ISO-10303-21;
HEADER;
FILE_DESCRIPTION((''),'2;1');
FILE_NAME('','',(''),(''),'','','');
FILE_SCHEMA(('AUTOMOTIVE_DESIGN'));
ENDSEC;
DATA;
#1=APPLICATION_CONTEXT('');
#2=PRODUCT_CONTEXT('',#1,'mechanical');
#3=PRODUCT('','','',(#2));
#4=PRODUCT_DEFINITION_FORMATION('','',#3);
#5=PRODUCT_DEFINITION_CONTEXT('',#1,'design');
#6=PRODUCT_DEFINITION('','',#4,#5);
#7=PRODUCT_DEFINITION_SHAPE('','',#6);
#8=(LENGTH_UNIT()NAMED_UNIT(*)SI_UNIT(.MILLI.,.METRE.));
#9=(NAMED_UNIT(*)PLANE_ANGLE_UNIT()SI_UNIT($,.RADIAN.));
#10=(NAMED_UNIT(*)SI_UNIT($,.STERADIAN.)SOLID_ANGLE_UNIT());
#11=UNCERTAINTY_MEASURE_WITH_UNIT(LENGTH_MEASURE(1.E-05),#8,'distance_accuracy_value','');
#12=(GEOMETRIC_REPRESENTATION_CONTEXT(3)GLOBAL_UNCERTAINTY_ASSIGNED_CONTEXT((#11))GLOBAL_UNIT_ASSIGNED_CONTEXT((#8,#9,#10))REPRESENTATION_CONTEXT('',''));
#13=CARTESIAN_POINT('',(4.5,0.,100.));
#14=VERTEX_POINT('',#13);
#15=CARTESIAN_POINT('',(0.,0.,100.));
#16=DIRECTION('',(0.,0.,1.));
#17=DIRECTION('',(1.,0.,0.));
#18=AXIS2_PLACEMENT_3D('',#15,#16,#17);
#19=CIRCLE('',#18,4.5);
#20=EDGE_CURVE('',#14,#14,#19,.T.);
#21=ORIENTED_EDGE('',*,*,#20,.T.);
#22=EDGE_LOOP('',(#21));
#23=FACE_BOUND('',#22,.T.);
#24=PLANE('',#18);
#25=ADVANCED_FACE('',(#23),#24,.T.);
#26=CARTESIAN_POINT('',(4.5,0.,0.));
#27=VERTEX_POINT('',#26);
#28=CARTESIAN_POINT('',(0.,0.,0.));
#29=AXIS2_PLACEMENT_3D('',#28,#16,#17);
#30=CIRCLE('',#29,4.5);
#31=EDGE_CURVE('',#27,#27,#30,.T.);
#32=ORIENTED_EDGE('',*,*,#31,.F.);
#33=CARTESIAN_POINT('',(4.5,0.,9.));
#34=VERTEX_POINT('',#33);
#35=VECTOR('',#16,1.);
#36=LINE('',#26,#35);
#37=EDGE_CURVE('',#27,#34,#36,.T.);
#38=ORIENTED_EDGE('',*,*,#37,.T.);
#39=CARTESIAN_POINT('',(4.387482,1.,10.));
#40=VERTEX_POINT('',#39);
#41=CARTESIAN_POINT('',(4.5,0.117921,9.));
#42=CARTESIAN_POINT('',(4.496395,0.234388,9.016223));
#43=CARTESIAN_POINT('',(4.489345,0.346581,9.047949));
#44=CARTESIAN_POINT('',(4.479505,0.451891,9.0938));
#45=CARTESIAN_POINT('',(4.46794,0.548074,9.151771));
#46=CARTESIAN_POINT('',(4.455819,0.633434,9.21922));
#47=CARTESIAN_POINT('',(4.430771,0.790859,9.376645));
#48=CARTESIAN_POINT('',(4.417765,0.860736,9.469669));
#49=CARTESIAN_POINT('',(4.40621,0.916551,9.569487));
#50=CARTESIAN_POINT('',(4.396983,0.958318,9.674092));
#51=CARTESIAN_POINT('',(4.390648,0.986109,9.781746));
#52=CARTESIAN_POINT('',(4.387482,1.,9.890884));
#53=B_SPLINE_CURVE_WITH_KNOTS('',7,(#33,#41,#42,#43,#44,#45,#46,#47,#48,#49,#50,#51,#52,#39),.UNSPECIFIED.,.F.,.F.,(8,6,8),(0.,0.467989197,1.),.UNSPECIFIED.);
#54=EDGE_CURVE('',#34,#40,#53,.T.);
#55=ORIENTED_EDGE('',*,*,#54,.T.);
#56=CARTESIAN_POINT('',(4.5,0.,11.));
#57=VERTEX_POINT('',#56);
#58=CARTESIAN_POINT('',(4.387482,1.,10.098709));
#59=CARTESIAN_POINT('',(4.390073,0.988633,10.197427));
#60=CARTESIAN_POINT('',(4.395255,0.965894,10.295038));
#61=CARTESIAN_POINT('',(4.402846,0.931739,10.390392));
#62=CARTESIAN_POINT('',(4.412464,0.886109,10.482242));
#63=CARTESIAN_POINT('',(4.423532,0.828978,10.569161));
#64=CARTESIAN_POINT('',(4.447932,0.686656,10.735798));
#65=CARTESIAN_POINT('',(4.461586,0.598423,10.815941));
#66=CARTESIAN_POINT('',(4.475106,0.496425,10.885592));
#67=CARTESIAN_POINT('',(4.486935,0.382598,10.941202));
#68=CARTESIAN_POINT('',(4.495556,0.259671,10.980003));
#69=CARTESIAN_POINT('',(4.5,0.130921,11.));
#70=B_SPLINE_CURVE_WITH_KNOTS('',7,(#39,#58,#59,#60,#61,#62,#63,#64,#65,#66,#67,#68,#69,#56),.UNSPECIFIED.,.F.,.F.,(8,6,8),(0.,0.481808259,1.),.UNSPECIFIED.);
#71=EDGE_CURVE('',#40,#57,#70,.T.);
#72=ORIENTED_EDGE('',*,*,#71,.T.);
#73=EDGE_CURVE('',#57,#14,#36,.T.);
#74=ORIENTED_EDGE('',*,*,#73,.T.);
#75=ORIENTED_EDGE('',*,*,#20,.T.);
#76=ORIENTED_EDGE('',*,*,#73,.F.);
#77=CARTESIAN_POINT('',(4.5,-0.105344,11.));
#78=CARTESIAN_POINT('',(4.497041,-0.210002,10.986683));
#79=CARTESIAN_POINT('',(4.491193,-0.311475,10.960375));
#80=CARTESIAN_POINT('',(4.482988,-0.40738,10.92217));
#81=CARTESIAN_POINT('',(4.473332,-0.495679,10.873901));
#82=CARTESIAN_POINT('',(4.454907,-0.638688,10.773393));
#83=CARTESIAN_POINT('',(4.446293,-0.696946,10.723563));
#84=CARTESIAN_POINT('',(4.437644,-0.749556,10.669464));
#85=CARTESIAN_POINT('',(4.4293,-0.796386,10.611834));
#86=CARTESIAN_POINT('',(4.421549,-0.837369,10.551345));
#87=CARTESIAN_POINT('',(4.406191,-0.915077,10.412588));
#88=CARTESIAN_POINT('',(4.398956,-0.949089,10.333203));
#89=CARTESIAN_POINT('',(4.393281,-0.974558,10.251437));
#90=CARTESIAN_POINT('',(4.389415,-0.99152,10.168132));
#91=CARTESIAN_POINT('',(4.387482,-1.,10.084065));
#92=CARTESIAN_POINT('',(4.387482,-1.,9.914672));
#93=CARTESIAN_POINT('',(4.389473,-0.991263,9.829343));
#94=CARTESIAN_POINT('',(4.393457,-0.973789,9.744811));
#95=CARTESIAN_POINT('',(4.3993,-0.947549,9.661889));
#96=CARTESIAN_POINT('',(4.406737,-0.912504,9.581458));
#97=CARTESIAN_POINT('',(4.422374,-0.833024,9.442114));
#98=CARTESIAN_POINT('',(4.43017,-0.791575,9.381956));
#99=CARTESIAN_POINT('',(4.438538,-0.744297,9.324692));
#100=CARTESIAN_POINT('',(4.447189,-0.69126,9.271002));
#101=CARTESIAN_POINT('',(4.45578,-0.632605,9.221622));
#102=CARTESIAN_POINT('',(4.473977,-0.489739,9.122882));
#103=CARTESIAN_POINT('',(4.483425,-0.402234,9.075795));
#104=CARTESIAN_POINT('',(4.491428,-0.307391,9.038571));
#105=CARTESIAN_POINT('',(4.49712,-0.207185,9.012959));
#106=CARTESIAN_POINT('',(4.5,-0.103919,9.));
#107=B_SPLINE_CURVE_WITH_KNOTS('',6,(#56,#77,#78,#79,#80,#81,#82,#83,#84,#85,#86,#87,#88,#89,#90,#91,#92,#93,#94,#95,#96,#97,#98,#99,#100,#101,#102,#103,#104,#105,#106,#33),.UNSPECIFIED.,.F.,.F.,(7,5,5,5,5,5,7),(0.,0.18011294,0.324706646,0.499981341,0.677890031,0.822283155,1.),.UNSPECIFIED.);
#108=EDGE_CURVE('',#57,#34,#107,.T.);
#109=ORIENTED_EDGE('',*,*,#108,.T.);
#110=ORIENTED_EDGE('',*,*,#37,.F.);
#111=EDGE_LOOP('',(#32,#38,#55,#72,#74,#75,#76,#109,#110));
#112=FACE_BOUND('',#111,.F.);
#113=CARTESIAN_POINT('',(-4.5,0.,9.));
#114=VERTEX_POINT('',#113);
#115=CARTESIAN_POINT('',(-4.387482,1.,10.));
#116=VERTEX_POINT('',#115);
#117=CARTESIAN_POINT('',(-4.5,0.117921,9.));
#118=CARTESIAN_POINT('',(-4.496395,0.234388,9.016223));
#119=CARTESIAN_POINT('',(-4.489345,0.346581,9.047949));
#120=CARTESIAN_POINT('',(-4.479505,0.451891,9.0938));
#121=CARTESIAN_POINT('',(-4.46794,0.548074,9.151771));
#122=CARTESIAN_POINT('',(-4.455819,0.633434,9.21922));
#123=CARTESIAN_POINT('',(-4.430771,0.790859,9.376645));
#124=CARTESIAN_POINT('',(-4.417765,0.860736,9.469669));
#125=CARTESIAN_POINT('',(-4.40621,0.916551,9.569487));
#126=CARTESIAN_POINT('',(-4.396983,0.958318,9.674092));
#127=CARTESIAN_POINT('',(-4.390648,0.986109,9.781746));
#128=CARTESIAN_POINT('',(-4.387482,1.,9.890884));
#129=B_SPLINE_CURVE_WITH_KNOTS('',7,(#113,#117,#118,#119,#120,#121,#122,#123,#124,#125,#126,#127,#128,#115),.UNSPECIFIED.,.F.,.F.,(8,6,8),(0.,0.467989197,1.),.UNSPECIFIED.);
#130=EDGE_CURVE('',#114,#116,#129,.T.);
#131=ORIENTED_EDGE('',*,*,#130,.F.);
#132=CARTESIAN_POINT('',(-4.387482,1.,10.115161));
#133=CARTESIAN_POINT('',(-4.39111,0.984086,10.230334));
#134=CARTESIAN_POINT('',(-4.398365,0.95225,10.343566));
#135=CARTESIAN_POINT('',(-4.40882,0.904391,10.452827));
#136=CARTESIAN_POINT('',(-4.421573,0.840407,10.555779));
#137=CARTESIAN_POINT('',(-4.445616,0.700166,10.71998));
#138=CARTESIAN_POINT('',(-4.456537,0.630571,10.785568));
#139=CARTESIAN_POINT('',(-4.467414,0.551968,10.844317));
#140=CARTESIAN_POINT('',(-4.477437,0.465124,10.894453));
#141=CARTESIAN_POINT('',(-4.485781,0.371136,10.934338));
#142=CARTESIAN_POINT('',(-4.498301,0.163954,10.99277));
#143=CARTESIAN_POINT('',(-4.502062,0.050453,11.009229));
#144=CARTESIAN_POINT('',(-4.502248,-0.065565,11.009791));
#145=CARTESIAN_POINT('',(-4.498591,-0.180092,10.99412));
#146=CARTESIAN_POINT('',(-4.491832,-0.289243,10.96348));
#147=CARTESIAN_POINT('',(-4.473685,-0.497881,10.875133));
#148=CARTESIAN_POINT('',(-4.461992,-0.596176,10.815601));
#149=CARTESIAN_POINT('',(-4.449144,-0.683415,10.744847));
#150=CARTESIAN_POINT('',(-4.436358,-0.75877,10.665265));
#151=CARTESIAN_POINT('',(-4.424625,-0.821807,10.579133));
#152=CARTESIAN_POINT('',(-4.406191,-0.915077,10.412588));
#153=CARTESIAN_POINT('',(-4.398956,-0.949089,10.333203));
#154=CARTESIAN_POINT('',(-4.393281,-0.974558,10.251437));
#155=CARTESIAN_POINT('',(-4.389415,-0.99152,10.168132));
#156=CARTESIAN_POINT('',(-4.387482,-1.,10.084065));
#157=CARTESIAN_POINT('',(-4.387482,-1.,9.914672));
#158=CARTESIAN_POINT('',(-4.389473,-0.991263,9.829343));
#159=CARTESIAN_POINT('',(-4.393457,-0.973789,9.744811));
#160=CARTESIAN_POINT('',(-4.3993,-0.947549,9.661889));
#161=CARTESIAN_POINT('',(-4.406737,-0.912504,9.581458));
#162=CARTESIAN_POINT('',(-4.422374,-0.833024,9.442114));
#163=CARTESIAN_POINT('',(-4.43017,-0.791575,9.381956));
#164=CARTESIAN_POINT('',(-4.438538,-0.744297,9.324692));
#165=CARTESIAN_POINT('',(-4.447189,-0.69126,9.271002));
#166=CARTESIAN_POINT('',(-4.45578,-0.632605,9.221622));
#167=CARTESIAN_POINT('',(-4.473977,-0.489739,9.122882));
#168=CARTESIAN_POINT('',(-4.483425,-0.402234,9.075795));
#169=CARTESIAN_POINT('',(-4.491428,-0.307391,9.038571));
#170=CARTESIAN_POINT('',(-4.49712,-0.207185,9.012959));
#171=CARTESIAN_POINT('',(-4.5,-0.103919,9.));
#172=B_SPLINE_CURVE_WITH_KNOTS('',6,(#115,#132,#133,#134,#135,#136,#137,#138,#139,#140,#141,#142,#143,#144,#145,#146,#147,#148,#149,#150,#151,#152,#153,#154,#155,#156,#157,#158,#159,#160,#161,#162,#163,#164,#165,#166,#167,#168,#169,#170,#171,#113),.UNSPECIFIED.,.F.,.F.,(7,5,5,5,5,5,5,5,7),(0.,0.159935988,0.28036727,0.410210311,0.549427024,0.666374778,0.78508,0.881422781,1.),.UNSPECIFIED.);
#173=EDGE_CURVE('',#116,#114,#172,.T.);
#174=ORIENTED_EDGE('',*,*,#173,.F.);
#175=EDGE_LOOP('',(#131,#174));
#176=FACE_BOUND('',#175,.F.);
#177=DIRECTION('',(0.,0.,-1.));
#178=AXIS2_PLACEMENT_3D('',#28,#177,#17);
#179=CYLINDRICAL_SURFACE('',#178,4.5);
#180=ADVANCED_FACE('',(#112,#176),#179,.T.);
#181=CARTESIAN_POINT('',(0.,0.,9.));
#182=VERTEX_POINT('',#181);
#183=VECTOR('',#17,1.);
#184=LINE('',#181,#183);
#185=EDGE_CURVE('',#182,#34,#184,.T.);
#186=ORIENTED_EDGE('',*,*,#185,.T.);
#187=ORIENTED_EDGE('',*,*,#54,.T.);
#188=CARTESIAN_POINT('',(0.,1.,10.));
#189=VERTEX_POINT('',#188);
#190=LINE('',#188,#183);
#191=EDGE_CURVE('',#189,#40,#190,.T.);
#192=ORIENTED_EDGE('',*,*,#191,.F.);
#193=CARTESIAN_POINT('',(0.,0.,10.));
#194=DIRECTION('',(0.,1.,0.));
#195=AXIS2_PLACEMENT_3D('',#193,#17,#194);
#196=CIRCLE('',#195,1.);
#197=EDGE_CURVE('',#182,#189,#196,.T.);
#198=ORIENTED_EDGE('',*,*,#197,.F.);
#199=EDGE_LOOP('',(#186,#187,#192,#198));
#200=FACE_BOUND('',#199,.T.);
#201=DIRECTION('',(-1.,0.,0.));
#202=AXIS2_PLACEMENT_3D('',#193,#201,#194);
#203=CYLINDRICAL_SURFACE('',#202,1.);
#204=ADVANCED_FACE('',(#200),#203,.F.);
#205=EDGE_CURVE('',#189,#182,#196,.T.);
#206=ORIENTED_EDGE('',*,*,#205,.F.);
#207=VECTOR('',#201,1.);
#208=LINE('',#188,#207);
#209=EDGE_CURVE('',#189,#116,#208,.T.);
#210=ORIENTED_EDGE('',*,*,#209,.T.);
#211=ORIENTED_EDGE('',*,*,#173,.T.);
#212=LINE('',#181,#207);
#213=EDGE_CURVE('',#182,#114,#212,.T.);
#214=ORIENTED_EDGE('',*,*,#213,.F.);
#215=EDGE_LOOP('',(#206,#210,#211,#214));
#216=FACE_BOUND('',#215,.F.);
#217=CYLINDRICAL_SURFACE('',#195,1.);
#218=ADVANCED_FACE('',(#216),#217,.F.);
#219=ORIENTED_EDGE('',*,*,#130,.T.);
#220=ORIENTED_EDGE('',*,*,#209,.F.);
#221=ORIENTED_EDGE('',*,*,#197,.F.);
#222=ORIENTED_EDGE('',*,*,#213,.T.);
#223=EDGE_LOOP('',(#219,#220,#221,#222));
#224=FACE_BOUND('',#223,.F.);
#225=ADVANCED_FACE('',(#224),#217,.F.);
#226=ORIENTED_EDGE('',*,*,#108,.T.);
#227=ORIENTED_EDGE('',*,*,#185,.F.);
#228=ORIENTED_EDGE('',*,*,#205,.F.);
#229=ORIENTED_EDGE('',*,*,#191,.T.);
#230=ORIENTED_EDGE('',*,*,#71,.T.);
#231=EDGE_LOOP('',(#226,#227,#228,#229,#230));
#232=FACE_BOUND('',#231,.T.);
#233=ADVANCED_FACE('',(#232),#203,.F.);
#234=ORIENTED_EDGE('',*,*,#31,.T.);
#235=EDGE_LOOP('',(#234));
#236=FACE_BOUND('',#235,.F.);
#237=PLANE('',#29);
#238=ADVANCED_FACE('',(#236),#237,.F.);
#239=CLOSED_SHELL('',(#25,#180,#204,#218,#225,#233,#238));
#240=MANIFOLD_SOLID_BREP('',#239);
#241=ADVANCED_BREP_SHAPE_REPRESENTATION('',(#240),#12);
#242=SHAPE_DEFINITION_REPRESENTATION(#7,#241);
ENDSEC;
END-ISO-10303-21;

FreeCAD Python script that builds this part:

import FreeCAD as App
import Part
import Sketcher
from FreeCAD import Vector

doc = App.newDocument("Part")
body = doc.addObject("PartDesign::Body", "Body")

# Sketch on XY plane
sketch1 = body.newObject("Sketcher::SketchObject", "Sketch")
sketch1.AttachmentSupport = (doc.getObject("XY_Plane"), [""])
sketch1.MapMode = "FlatFace"
sketch1.addGeometry(Part.Circle(Vector(0, 0, 0), Vector(0, 0, 1), 4.5), False)
sketch1.addConstraint([
    Sketcher.Constraint("Coincident", 0, 3, -1, 1),
    Sketcher.Constraint("Diameter", 0, 9.0),
])
pad1 = body.newObject("PartDesign::Pad", "Pad")
pad1.Profile = sketch1
pad1.Length = 100

# Sketch on YZ plane
sketch2 = body.newObject("Sketcher::SketchObject", "Sketch001")
sketch2.AttachmentSupport = (doc.getObject("YZ_Plane"), [""])
sketch2.MapMode = "FlatFace"
sketch2.addGeometry(Part.Circle(Vector(0, 10, 0), Vector(0, 0, 1), 1), False)
sketch2.addConstraint([
    Sketcher.Constraint("PointOnObject", 0, 3, -2),
    Sketcher.Constraint("Diameter", 0, 2.0),
    Sketcher.Constraint("DistanceY", -1, 1, 0, 3, 10.0),
])
pocket1 = body.newObject("PartDesign::Pocket", "Pocket")
pocket1.Profile = sketch2
pocket1.Type = "ThroughAll"
pocket1.Midplane = True

doc.recompute()
